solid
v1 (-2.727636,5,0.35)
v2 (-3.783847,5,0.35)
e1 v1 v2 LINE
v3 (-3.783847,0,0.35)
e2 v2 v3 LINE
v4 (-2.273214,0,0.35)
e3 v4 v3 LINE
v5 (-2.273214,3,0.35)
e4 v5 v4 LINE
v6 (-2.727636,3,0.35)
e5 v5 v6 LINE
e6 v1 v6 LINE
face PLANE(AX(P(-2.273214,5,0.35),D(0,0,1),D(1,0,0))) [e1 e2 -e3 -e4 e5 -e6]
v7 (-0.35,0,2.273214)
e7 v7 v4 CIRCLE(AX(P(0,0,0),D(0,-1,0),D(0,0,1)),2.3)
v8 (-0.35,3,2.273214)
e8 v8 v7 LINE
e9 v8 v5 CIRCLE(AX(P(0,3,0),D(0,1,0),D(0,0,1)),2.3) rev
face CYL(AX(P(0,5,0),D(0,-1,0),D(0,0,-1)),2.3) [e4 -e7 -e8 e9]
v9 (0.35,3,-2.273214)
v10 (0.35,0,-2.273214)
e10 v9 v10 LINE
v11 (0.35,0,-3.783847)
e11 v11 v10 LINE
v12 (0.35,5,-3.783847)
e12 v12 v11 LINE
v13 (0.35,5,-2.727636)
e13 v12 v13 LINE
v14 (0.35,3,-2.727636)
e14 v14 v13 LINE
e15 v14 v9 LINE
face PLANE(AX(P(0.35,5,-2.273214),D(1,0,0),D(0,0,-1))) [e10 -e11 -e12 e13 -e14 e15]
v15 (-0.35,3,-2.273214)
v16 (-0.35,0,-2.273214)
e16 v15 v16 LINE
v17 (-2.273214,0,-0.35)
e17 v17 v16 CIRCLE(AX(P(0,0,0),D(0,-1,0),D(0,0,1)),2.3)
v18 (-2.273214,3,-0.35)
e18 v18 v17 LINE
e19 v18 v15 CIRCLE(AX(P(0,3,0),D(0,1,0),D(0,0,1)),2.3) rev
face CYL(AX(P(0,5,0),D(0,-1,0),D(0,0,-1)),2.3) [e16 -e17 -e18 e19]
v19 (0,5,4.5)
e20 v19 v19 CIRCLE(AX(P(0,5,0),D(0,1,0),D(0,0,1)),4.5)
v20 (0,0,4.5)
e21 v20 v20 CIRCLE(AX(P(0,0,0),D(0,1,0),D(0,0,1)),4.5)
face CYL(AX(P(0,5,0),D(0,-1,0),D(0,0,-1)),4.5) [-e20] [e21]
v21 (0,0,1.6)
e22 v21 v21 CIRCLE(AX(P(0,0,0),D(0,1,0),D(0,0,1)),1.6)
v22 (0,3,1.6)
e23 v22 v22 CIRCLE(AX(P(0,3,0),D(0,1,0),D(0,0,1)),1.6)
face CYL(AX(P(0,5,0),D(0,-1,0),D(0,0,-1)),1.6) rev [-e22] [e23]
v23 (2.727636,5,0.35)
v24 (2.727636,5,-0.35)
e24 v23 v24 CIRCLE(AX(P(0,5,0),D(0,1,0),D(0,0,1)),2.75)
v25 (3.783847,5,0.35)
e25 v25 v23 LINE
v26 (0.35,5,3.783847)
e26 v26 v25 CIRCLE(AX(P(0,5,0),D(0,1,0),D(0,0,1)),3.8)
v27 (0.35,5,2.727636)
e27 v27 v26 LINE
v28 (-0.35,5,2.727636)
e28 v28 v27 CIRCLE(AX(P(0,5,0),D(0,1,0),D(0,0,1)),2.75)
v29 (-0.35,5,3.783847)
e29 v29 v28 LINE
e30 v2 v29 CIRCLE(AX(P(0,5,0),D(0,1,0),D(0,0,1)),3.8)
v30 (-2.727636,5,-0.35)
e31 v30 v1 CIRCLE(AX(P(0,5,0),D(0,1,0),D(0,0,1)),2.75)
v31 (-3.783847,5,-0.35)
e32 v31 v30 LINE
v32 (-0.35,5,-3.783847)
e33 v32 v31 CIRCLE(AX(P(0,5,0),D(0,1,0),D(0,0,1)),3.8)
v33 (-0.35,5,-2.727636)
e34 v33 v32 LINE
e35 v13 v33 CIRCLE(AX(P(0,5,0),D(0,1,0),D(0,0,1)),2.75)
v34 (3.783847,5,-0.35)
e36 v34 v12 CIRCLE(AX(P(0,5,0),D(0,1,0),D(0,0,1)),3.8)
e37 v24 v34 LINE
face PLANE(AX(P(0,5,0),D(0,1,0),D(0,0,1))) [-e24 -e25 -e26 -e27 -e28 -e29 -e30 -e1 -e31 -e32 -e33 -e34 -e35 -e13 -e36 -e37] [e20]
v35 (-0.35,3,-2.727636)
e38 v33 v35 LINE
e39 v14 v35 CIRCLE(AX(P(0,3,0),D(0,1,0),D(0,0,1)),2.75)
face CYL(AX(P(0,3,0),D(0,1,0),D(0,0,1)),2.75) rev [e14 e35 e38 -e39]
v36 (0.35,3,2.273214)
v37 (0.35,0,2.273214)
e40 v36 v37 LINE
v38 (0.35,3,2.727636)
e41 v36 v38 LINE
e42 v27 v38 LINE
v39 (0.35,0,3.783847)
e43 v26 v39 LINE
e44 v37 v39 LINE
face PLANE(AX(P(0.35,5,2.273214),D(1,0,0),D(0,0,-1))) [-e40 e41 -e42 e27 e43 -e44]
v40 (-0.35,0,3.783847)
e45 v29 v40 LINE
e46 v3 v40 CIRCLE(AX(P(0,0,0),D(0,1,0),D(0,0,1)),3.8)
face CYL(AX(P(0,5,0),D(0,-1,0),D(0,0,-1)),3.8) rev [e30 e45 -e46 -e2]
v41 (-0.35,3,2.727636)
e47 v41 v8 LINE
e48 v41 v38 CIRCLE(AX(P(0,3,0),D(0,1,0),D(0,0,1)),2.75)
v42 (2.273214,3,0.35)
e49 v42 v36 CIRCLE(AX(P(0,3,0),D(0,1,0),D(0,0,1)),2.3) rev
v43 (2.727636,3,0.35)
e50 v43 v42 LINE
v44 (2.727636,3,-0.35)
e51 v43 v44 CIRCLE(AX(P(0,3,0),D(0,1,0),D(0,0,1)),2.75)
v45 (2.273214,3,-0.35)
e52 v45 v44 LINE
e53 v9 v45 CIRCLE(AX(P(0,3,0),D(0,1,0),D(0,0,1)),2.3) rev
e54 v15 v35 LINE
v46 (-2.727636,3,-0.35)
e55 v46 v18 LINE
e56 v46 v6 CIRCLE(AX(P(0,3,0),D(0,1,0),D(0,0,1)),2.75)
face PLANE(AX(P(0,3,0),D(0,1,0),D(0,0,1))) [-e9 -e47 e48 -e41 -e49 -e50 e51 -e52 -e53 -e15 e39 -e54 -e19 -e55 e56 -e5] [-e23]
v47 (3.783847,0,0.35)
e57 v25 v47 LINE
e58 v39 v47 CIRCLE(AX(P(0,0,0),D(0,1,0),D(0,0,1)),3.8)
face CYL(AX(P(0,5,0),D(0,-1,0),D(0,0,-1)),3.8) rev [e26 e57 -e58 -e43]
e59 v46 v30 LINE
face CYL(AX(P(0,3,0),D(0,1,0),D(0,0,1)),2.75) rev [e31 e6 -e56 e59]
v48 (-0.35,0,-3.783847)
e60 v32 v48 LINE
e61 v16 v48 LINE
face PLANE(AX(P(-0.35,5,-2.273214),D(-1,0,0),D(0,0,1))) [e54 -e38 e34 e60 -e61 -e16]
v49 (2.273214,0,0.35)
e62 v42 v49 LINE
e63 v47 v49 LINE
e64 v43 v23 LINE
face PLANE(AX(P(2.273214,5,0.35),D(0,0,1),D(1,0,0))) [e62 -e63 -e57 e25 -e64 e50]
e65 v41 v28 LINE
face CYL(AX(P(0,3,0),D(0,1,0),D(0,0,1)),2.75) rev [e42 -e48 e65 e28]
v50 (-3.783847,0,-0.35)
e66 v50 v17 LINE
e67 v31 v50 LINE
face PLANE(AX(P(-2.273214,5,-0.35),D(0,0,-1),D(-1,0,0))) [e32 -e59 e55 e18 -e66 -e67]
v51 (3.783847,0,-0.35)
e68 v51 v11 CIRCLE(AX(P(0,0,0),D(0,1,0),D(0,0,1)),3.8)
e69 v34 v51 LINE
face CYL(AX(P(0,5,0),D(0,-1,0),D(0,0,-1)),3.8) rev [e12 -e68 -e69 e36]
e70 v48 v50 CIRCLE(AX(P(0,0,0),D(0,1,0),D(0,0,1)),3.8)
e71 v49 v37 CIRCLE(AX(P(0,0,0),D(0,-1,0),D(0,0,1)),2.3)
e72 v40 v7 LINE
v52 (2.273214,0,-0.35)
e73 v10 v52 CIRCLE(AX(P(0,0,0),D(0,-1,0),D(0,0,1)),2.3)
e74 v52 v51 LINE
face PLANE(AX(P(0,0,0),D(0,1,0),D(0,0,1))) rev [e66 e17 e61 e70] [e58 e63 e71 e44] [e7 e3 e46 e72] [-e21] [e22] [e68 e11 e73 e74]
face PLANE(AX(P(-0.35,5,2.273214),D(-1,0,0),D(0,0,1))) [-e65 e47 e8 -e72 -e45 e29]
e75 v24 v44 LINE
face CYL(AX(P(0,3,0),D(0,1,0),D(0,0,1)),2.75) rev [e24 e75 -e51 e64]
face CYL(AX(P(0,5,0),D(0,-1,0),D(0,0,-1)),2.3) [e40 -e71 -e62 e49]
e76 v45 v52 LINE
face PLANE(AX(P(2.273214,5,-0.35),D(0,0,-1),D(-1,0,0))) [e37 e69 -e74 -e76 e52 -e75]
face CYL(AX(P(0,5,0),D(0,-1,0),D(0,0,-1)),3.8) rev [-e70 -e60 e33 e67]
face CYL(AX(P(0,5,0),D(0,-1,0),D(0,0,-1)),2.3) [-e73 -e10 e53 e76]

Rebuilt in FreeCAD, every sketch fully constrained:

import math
import FreeCAD as App
import Part
import Sketcher
Q = App.Units.Quantity

doc = App.newDocument("Part")
body = doc.addObject("PartDesign::Body", "Body")

# Sketch on XZ plane
sketch1 = body.newObject("Sketcher::SketchObject", "Sketch")
sketch1.AttachmentSupport = (doc.getObject("XZ_Plane"), [""])
sketch1.MapMode = "FlatFace"
sketch1.addGeometry([
    Part.Circle(App.Vector(0, 0, 0), App.Vector(0, 0, 1), 4.5),  # 0
    Part.ArcOfCircle(Part.Circle(App.Vector(0, 0, 0), App.Vector(0, 0, 1), 2.3), math.radians(-171), math.radians(-99)),  # 1
    Part.LineSegment(App.Vector(-2.3, -0.3, 0), App.Vector(-3.8, -0.3, 0)),  # 2
    Part.ArcOfCircle(Part.Circle(App.Vector(0, 0, 0), App.Vector(0, 0, 1), 3.8), math.radians(-175), math.radians(-95)),  # 3
    Part.LineSegment(App.Vector(-0.3, -3.8, 0), App.Vector(-0.3, -2.3, 0)),  # 4
    Part.ArcOfCircle(Part.Circle(App.Vector(0, 0, 0), App.Vector(0, 0, 1), 2.3), math.radians(99), math.radians(171)),  # 5
    Part.LineSegment(App.Vector(-0.3, 2.3, 0), App.Vector(-0.3, 3.8, 0)),  # 6
    Part.ArcOfCircle(Part.Circle(App.Vector(0, 0, 0), App.Vector(0, 0, 1), 3.8), math.radians(95), math.radians(175)),  # 7
    Part.LineSegment(App.Vector(-3.8, 0.3, 0), App.Vector(-2.3, 0.3, 0)),  # 8
    Part.Circle(App.Vector(0, 0, 0), App.Vector(0, 0, 1), 1.6),  # 9
    Part.LineSegment(App.Vector(3.8, -0.3, 0), App.Vector(2.3, -0.3, 0)),  # 10
    Part.ArcOfCircle(Part.Circle(App.Vector(0, 0, 0), App.Vector(0, 0, 1), 2.3), math.radians(-81), math.radians(-9)),  # 11
    Part.LineSegment(App.Vector(0.3, -2.3, 0), App.Vector(0.3, -3.8, 0)),  # 12
    Part.ArcOfCircle(Part.Circle(App.Vector(0, 0, 0), App.Vector(0, 0, 1), 3.8), math.radians(-85), math.radians(-5)),  # 13
    Part.ArcOfCircle(Part.Circle(App.Vector(0, 0, 0), App.Vector(0, 0, 1), 2.3), math.radians(9), math.radians(81)),  # 14
    Part.LineSegment(App.Vector(2.3, 0.3, 0), App.Vector(3.8, 0.3, 0)),  # 15
    Part.ArcOfCircle(Part.Circle(App.Vector(0, 0, 0), App.Vector(0, 0, 1), 3.8), math.radians(5), math.radians(85)),  # 16
    Part.LineSegment(App.Vector(0.3, 3.8, 0), App.Vector(0.3, 2.3, 0)),  # 17
], False)
sketch1.addConstraint([
    Sketcher.Constraint("Coincident", 1, 1, 2, 1),
    Sketcher.Constraint("Coincident", 2, 2, 3, 1),
    Sketcher.Constraint("Coincident", 3, 2, 4, 1),
    Sketcher.Constraint("Coincident", 4, 2, 1, 2),
    Sketcher.Constraint("Coincident", 5, 1, 6, 1),
    Sketcher.Constraint("Coincident", 6, 2, 7, 1),
    Sketcher.Constraint("Coincident", 7, 2, 8, 1),
    Sketcher.Constraint("Coincident", 8, 2, 5, 2),
    Sketcher.Constraint("Coincident", 10, 2, 11, 2),
    Sketcher.Constraint("Coincident", 11, 1, 12, 1),
    Sketcher.Constraint("Coincident", 12, 2, 13, 1),
    Sketcher.Constraint("Coincident", 13, 2, 10, 1),
    Sketcher.Constraint("Coincident", 14, 1, 15, 1),
    Sketcher.Constraint("Coincident", 15, 2, 16, 1),
    Sketcher.Constraint("Coincident", 16, 2, 17, 1),
    Sketcher.Constraint("Coincident", 17, 2, 14, 2),
    Sketcher.Constraint("Horizontal", 2),
    Sketcher.Constraint("Vertical", 4),
    Sketcher.Constraint("Vertical", 6),
    Sketcher.Constraint("Horizontal", 8),
    Sketcher.Constraint("Horizontal", 10),
    Sketcher.Constraint("Vertical", 12),
    Sketcher.Constraint("Horizontal", 15),
    Sketcher.Constraint("Vertical", 17),
    Sketcher.Constraint("Coincident", 0, 3, -1, 1),
    Sketcher.Constraint("Coincident", 1, 3, -1, 1),
    Sketcher.Constraint("Coincident", 3, 3, -1, 1),
    Sketcher.Constraint("Coincident", 5, 3, -1, 1),
    Sketcher.Constraint("Coincident", 7, 3, -1, 1),
    Sketcher.Constraint("Coincident", 9, 3, -1, 1),
    Sketcher.Constraint("Coincident", 11, 3, -1, 1),
    Sketcher.Constraint("Coincident", 13, 3, -1, 1),
    Sketcher.Constraint("Coincident", 14, 3, -1, 1),
    Sketcher.Constraint("Coincident", 16, 3, -1, 1),
    Sketcher.Constraint("Equal", 1, 5),
    Sketcher.Constraint("Equal", 3, 7),
    Sketcher.Constraint("Equal", 5, 11),
    Sketcher.Constraint("Equal", 7, 13),
    Sketcher.Constraint("Equal", 11, 14),
    Sketcher.Constraint("Equal", 13, 16),
    Sketcher.Constraint("Horizontal", 2, 2, 10, 2),
    Sketcher.Constraint("Horizontal", 4, 2, 11, 1),
    Sketcher.Constraint("Horizontal", 8, 2, 14, 1),
    Sketcher.Constraint("Horizontal", 6, 2, 16, 2),
    Sketcher.Constraint("Vertical", 4, 2, 5, 1),
    Sketcher.Constraint("Vertical", 2, 2, 7, 2),
    Sketcher.Constraint("Equal", 15, 4),
    Sketcher.Constraint("Diameter", 0, Q("9 mm")),
    Sketcher.Constraint("Diameter", 9, Q("3.2 mm")),
    Sketcher.Constraint("Radius", 1, Q("2.3 mm")),
    Sketcher.Constraint("Radius", 3, Q("3.8 mm")),
    Sketcher.Constraint("DistanceY", 2, 2, 7, 2, Q("0.7 mm")),
])
pad1 = body.newObject("PartDesign::Pad", "Pad")
pad1.Profile = sketch1
pad1.Length = 5
pad1.Reversed = True

# Sketch on XZ plane
sketch2 = body.newObject("Sketcher::SketchObject", "Sketch001")
sketch2.AttachmentSupport = (doc.getObject("XZ_Plane"), [""])
sketch2.MapMode = "FlatFace"
sketch2.AttachmentOffset = App.Placement(App.Vector(0, 0, -5), App.Rotation())
sketch2.addGeometry(Part.Circle(App.Vector(0, 0, 0), App.Vector(0, 0, 1), 2.8), False)
sketch2.addConstraint([
    Sketcher.Constraint("Coincident", 0, 3, -1, 1),
    Sketcher.Constraint("Diameter", 0, Q("5.5 mm")),
])
pocket1 = body.newObject("PartDesign::Pocket", "Pocket")
pocket1.Profile = sketch2
pocket1.Length = 2
pocket1.Reversed = True

doc.recompute()
